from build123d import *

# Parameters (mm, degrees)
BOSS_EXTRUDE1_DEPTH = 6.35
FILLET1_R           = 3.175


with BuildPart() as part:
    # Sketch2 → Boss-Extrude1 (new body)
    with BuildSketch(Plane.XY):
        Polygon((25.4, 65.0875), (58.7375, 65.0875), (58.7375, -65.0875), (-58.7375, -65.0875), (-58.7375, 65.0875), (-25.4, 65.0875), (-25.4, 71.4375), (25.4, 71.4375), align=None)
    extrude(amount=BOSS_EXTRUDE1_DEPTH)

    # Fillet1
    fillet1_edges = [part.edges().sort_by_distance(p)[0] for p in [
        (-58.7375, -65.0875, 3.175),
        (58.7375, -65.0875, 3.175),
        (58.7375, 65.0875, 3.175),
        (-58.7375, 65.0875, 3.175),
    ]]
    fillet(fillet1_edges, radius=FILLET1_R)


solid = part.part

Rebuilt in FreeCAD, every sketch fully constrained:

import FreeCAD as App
import Part
import Sketcher
from FreeCAD import Vector
Q = App.Units.Quantity


def edges_at(feature, points):
    """Names of the edges that pass closest to the given points."""
    edges = feature.Shape.Edges
    near = lambda p: min(range(len(edges)), key=lambda i: edges[i].distToShape(Part.Vertex(*p))[0])
    return sorted({f"Edge{near(p) + 1}" for p in points})

doc = App.newDocument("Part")
body = doc.addObject("PartDesign::Body", "Body")

# Sketch on XY plane
sketch1 = body.newObject("Sketcher::SketchObject", "Sketch")
sketch1.AttachmentSupport = (doc.getObject("XY_Plane"), [""])
sketch1.MapMode = "FlatFace"
sketch1.addGeometry(Part.LineSegment(Vector(59, 65, 0), Vector(25, 65, 0)), False)
sketch1.addGeometry(Part.LineSegment(Vector(25, 65, 0), Vector(25, 71, 0)), False)
sketch1.addGeometry(Part.LineSegment(Vector(25, 71, 0), Vector(-25, 71, 0)), False)
sketch1.addGeometry(Part.LineSegment(Vector(-25, 71, 0), Vector(-25, 65, 0)), False)
sketch1.addGeometry(Part.LineSegment(Vector(-25, 65, 0), Vector(-59, 65, 0)), False)
sketch1.addGeometry(Part.LineSegment(Vector(-59, 65, 0), Vector(-59, -65, 0)), False)
sketch1.addGeometry(Part.LineSegment(Vector(-59, -65, 0), Vector(59, -65, 0)), False)
sketch1.addGeometry(Part.LineSegment(Vector(59, -65, 0), Vector(59, 65, 0)), False)
sketch1.addConstraint(Sketcher.Constraint("Coincident", 0, 2, 1, 1))
sketch1.addConstraint(Sketcher.Constraint("Coincident", 1, 2, 2, 1))
sketch1.addConstraint(Sketcher.Constraint("Coincident", 2, 2, 3, 1))
sketch1.addConstraint(Sketcher.Constraint("Coincident", 3, 2, 4, 1))
sketch1.addConstraint(Sketcher.Constraint("Coincident", 4, 2, 5, 1))
sketch1.addConstraint(Sketcher.Constraint("Coincident", 5, 2, 6, 1))
sketch1.addConstraint(Sketcher.Constraint("Coincident", 6, 2, 7, 1))
sketch1.addConstraint(Sketcher.Constraint("Coincident", 7, 2, 0, 1))
sketch1.addConstraint(Sketcher.Constraint("Horizontal", 0))
sketch1.addConstraint(Sketcher.Constraint("Vertical", 1))
sketch1.addConstraint(Sketcher.Constraint("Horizontal", 2))
sketch1.addConstraint(Sketcher.Constraint("Vertical", 3))
sketch1.addConstraint(Sketcher.Constraint("Horizontal", 4))
sketch1.addConstraint(Sketcher.Constraint("Vertical", 5))
sketch1.addConstraint(Sketcher.Constraint("Horizontal", 6))
sketch1.addConstraint(Sketcher.Constraint("Vertical", 7))
sketch1.addConstraint(Sketcher.Constraint("Symmetric", 4, 2, 6, 2, -1, 1))
sketch1.addConstraint(Sketcher.Constraint("Symmetric", 0, 2, 3, 2, -2))
sketch1.addConstraint(Sketcher.Constraint("DistanceX", 2, 2, 2, 1, Q("2 in")))
sketch1.addConstraint(Sketcher.Constraint("DistanceY", 1, 1, 1, 2, Q("0.25 in")))
sketch1.addConstraint(Sketcher.Constraint("DistanceX", 0, 2, 0, 1, Q("1.3125 in")))
sketch1.addConstraint(Sketcher.Constraint("DistanceY", 5, 2, 5, 1, Q("5.125 in")))
pad1 = body.newObject("PartDesign::Pad", "Pad")
pad1.Profile = sketch1
pad1.Length = Q("0.25 in")
doc.recompute()

fillet = body.newObject("PartDesign::Fillet", "Fillet")
fillet.Base = (pad1, edges_at(pad1, [
    (-58.737, -65.088, 3.175),
    (58.737, -65.088, 3.175),
    (58.737, 65.088, 3.175),
    (-58.737, 65.088, 3.175),
]))
fillet.Radius = Q("0.125 in")

doc.recompute()
